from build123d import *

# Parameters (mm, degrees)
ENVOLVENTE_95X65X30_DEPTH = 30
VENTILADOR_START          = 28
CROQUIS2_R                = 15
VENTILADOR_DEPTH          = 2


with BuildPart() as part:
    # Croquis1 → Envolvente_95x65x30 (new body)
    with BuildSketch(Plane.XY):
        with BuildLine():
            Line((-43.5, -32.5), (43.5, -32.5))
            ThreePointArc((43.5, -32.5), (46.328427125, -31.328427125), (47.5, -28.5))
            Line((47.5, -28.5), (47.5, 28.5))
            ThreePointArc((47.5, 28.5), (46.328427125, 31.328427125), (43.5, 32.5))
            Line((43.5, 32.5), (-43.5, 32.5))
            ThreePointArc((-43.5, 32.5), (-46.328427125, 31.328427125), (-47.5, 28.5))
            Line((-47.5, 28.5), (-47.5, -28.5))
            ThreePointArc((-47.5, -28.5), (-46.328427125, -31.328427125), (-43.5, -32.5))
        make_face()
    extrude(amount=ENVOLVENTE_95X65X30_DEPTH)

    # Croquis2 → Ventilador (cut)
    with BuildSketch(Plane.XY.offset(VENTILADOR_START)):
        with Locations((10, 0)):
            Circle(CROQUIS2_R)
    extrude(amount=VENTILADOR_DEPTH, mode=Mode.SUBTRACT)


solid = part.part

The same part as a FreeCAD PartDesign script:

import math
import FreeCAD as App
import Part
import Sketcher

doc = App.newDocument("Part")
body = doc.addObject("PartDesign::Body", "Body")

# Sketch on XY plane
sketch1 = body.newObject("Sketcher::SketchObject", "Sketch")
sketch1.AttachmentSupport = (doc.getObject("XY_Plane"), [""])
sketch1.MapMode = "FlatFace"
sketch1.addGeometry([
    Part.LineSegment(App.Vector(-43.5, -32.5, 0), App.Vector(43.5, -32.5, 0)),  # 0
    Part.ArcOfCircle(Part.Circle(App.Vector(43.5, -28.5, 0), App.Vector(0, 0, 1), 4), math.radians(-90), math.radians(0)),  # 1
    Part.LineSegment(App.Vector(47.5, -28.5, 0), App.Vector(47.5, 28.5, 0)),  # 2
    Part.ArcOfCircle(Part.Circle(App.Vector(43.5, 28.5, 0), App.Vector(0, 0, 1), 4), math.radians(0), math.radians(90)),  # 3
    Part.LineSegment(App.Vector(43.5, 32.5, 0), App.Vector(-43.5, 32.5, 0)),  # 4
    Part.ArcOfCircle(Part.Circle(App.Vector(-43.5, 28.5, 0), App.Vector(0, 0, 1), 4), math.radians(90), math.radians(180)),  # 5
    Part.LineSegment(App.Vector(-47.5, 28.5, 0), App.Vector(-47.5, -28.5, 0)),  # 6
    Part.ArcOfCircle(Part.Circle(App.Vector(-43.5, -28.5, 0), App.Vector(0, 0, 1), 4), math.radians(180), math.radians(270)),  # 7
], False)
sketch1.addConstraint([
    Sketcher.Constraint("Tangent", 0, 2, 1, 1),
    Sketcher.Constraint("Tangent", 1, 2, 2, 1),
    Sketcher.Constraint("Tangent", 2, 2, 3, 1),
    Sketcher.Constraint("Tangent", 3, 2, 4, 1),
    Sketcher.Constraint("Tangent", 4, 2, 5, 1),
    Sketcher.Constraint("Tangent", 5, 2, 6, 1),
    Sketcher.Constraint("Tangent", 6, 2, 7, 1),
    Sketcher.Constraint("Tangent", 7, 2, 0, 1),
    Sketcher.Constraint("Horizontal", 0),
    Sketcher.Constraint("Vertical", 2),
    Sketcher.Constraint("Horizontal", 4),
    Sketcher.Constraint("Vertical", 6),
    Sketcher.Constraint("Equal", 1, 3),
    Sketcher.Constraint("Equal", 3, 5),
    Sketcher.Constraint("Equal", 5, 7),
    Sketcher.Constraint("Symmetric", 1, 3, 5, 3, -1, 1),
    Sketcher.Constraint("Radius", 1, 4.0),
    Sketcher.Constraint("DistanceX", 0, 1, 0, 2, 87.0),
    Sketcher.Constraint("DistanceY", 2, 1, 2, 2, 57.0),
])
pad1 = body.newObject("PartDesign::Pad", "Pad")
pad1.Profile = sketch1
pad1.Length = 30

# Sketch on XY plane
sketch2 = body.newObject("Sketcher::SketchObject", "Sketch001")
sketch2.AttachmentSupport = (doc.getObject("XY_Plane"), [""])
sketch2.MapMode = "FlatFace"
sketch2.AttachmentOffset = App.Placement(App.Vector(0, 0, 28), App.Rotation())
sketch2.addGeometry(Part.Circle(App.Vector(10, 0, 0), App.Vector(0, 0, 1), 15), False)
sketch2.addConstraint([
    Sketcher.Constraint("PointOnObject", 0, 3, -1),
    Sketcher.Constraint("Diameter", 0, 30.0),
    Sketcher.Constraint("DistanceX", -1, 1, 0, 3, 10.0),
])
pocket1 = body.newObject("PartDesign::Pocket", "Pocket")
pocket1.Profile = sketch2
pocket1.Length = 2
pocket1.Reversed = True

doc.recompute()
